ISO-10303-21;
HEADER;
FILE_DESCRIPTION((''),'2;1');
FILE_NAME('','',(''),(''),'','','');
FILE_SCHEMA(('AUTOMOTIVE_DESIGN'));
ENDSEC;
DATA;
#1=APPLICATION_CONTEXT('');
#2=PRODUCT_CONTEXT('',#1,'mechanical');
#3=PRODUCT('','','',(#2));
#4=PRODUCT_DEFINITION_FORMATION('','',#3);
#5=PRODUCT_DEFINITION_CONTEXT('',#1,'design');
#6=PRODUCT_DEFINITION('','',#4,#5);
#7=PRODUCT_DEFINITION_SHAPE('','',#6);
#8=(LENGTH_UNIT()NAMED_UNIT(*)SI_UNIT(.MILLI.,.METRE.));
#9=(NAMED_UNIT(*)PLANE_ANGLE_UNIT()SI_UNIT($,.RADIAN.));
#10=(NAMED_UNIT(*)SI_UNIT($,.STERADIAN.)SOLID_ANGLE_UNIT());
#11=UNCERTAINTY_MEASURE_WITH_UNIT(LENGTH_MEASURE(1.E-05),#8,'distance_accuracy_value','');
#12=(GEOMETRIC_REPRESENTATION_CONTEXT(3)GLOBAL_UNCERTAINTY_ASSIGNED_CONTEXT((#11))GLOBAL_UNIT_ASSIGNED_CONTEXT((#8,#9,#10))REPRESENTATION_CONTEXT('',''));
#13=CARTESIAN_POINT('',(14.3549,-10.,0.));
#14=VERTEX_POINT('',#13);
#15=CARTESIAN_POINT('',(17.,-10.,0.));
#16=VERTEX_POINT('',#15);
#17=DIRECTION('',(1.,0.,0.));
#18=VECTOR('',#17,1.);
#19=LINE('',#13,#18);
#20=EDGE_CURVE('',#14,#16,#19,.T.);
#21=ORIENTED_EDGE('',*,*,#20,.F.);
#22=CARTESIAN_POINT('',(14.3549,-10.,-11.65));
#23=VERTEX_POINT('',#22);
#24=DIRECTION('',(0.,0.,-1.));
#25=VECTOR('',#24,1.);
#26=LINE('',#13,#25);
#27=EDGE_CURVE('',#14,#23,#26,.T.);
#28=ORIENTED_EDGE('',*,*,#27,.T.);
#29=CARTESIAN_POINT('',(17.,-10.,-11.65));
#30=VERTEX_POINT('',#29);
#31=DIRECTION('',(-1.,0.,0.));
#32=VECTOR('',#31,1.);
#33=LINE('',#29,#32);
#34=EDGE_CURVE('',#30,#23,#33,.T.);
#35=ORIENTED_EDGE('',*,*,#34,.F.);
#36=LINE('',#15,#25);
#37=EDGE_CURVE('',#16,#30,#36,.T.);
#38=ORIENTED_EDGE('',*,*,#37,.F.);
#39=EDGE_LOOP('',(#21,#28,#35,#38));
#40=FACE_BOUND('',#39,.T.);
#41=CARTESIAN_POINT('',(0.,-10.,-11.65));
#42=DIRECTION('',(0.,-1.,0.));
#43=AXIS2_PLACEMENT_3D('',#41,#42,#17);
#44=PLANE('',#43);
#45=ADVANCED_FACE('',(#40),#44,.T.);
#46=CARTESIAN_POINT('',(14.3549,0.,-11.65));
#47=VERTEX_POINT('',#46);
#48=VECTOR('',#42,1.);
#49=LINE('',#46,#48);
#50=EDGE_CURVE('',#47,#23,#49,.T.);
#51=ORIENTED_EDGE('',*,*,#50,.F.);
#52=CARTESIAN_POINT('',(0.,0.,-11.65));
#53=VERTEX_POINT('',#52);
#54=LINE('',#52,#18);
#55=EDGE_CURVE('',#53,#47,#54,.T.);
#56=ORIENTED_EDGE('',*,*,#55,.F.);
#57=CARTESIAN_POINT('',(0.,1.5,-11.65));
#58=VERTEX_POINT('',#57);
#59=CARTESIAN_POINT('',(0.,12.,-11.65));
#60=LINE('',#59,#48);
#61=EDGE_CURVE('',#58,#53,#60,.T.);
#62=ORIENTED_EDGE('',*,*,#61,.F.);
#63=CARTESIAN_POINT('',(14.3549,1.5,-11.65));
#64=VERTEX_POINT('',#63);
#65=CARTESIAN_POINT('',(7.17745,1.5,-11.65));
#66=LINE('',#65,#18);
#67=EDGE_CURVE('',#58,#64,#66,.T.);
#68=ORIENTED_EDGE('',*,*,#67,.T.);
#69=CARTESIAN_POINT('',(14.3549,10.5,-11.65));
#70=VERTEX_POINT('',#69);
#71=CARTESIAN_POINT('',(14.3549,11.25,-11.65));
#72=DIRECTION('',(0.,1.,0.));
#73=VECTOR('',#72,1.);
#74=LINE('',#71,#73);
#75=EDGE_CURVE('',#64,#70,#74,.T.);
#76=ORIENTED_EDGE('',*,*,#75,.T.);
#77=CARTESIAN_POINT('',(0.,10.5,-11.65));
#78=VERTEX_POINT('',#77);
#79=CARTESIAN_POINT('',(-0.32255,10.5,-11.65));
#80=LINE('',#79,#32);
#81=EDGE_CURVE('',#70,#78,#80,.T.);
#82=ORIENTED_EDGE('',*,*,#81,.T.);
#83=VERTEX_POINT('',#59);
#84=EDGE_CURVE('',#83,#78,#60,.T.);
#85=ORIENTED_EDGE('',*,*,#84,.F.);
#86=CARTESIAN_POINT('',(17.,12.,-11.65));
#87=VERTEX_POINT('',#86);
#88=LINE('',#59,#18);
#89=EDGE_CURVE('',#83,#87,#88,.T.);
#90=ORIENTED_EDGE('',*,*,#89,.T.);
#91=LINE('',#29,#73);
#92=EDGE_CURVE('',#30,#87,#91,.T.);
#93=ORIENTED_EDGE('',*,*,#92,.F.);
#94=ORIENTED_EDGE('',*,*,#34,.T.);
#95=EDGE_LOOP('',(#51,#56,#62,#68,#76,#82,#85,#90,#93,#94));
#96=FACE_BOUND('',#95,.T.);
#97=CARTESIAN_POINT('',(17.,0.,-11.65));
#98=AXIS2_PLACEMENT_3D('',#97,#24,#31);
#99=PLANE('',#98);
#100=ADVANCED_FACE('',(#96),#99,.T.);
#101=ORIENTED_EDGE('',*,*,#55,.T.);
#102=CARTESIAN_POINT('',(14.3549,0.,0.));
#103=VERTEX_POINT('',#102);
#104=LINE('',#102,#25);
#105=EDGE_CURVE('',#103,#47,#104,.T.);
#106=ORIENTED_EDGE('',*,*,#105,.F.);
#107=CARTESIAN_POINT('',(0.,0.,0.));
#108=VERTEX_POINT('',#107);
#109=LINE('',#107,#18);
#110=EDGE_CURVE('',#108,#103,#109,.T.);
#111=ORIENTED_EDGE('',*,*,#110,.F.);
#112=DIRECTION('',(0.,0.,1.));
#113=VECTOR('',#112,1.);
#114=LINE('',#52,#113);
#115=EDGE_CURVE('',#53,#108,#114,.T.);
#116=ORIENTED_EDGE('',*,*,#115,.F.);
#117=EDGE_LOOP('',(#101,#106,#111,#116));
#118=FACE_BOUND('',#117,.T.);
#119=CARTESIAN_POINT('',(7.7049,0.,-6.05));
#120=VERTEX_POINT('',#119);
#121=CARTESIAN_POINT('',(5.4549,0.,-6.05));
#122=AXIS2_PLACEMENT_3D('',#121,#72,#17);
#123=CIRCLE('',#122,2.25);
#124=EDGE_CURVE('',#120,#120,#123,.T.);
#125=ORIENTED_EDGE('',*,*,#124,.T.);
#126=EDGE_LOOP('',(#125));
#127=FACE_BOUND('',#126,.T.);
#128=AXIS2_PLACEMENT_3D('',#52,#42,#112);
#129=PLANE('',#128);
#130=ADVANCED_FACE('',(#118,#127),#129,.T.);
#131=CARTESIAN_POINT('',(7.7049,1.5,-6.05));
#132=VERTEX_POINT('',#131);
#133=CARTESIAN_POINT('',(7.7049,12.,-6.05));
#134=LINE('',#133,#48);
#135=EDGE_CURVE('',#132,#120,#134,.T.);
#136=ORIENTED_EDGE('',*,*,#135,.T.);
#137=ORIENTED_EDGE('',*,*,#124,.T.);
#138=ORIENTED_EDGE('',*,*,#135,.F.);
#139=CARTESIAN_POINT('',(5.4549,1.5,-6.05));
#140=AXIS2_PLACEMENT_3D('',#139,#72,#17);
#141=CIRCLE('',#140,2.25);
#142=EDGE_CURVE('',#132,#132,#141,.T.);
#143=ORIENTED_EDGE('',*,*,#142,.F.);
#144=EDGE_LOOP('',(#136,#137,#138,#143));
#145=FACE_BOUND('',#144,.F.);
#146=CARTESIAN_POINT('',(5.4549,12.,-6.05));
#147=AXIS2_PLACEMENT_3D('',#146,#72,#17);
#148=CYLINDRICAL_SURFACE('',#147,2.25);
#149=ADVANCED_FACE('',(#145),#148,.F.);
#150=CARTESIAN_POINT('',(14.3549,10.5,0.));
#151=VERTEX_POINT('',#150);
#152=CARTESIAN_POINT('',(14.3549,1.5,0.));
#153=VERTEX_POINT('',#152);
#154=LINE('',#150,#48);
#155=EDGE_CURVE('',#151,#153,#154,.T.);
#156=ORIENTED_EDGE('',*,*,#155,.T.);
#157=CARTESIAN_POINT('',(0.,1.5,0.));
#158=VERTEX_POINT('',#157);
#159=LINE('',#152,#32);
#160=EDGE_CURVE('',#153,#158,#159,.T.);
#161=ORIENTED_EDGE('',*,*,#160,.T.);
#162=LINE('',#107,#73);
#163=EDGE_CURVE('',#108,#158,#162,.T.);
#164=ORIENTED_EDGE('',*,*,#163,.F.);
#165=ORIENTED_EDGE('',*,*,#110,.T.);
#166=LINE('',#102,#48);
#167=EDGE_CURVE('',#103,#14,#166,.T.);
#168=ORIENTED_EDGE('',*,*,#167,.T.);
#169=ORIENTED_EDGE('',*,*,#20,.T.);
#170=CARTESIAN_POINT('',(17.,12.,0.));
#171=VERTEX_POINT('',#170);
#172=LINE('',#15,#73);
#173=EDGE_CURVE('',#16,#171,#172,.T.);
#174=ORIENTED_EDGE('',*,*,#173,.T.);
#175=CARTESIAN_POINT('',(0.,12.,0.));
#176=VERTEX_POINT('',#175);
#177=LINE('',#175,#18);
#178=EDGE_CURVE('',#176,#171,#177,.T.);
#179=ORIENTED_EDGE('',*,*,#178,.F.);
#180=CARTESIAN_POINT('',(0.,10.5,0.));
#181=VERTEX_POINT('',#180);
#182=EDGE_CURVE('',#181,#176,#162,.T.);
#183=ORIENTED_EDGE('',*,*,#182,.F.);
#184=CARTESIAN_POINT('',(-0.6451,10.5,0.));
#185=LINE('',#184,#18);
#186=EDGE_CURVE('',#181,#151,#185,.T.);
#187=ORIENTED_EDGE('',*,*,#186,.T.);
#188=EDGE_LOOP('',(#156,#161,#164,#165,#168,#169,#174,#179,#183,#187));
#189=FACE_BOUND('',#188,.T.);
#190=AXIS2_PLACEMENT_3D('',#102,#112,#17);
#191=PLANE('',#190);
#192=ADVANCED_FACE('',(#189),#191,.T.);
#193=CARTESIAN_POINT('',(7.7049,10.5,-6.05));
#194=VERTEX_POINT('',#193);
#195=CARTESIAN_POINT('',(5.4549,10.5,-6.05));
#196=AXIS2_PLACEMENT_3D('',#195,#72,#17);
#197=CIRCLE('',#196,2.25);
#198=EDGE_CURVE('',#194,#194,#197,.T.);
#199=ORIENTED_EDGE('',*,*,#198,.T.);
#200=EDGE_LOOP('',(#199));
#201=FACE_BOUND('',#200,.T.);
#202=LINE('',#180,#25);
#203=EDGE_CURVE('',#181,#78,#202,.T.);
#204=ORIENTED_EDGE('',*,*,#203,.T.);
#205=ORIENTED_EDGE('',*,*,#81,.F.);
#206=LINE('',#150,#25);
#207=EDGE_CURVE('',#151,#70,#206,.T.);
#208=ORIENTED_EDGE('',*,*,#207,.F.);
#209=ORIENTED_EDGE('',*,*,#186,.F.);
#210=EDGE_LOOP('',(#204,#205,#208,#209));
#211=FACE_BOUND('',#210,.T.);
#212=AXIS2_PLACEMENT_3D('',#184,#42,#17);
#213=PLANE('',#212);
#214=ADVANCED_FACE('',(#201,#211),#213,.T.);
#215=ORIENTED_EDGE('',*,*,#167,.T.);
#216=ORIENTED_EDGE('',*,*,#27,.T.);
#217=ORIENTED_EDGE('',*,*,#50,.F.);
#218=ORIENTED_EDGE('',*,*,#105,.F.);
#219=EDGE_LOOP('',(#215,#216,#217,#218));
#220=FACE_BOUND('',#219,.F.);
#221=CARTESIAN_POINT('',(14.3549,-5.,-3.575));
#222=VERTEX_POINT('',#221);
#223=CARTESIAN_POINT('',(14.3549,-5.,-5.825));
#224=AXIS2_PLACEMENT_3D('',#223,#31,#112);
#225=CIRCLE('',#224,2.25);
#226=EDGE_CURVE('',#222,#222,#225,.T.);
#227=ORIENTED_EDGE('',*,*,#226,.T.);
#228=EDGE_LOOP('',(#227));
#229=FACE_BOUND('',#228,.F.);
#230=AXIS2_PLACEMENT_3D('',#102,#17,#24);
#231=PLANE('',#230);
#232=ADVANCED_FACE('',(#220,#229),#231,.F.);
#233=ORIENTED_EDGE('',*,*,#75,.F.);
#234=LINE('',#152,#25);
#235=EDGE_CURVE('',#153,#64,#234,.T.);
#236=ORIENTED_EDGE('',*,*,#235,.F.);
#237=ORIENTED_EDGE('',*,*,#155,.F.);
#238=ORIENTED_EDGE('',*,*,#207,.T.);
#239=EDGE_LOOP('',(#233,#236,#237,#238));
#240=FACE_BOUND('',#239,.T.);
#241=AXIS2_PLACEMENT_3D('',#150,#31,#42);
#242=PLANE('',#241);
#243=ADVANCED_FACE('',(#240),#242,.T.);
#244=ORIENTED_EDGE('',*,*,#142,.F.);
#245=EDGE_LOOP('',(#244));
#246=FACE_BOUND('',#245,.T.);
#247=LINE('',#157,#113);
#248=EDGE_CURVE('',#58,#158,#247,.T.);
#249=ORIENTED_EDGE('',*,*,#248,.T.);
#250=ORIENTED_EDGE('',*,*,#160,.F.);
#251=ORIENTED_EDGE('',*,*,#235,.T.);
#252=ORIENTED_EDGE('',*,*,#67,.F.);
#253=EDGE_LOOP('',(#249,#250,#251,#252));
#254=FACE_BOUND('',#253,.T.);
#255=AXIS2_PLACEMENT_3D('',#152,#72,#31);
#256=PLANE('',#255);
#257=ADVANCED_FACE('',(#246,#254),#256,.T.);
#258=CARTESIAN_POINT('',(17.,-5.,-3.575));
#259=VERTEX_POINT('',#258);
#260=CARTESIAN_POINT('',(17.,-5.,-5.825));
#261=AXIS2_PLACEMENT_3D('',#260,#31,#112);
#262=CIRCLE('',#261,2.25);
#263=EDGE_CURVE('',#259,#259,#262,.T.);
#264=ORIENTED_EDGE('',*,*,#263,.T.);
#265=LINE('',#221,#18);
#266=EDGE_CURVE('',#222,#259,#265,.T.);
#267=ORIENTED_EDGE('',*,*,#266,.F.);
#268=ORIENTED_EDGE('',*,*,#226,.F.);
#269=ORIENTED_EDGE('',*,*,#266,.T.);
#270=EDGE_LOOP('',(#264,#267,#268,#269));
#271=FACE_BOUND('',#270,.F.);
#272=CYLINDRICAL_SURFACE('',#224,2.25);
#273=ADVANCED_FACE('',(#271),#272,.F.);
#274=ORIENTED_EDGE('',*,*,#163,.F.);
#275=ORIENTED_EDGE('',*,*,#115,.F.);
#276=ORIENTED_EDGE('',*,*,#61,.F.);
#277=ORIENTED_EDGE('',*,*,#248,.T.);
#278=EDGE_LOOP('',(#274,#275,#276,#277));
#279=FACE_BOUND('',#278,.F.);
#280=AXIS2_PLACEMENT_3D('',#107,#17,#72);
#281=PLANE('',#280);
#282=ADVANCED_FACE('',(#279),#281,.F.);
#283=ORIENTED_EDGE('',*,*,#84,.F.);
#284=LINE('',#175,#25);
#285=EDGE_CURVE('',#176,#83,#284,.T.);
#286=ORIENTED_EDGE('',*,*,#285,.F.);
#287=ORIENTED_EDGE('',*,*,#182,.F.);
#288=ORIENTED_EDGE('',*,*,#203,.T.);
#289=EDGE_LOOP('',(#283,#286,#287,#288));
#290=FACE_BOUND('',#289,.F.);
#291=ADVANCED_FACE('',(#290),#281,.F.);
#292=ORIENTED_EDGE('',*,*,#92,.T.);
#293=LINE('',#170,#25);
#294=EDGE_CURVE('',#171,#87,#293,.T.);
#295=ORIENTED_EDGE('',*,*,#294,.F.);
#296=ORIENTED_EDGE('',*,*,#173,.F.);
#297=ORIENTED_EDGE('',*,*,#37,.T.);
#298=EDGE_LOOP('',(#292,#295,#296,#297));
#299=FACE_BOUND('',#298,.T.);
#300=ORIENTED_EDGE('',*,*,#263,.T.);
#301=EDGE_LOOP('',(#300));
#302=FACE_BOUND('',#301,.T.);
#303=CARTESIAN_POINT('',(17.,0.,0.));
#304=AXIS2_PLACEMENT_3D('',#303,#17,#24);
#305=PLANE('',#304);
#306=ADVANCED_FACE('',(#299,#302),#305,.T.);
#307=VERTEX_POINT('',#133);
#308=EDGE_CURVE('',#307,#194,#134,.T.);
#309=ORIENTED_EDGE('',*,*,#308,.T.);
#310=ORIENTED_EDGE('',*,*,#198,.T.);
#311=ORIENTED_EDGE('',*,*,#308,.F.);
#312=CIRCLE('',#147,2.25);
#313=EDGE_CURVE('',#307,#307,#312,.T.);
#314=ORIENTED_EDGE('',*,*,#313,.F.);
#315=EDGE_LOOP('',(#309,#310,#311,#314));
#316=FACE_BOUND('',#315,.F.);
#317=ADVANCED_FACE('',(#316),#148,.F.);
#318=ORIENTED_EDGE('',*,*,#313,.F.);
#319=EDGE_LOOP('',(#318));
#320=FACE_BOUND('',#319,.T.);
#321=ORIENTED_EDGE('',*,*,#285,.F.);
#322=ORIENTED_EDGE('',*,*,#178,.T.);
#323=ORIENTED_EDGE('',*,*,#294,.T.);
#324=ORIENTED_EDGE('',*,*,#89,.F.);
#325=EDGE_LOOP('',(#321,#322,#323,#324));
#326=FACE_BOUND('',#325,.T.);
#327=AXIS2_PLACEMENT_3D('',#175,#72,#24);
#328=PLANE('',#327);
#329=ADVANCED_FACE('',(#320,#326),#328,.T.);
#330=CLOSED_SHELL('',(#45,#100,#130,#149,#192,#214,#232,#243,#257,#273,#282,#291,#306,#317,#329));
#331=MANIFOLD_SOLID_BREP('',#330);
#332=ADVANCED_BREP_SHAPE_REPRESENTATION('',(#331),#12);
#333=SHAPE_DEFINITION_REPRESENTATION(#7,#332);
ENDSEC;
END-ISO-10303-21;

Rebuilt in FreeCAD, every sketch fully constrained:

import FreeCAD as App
import Part
import Sketcher

V = App.Vector


def add_polygon(sketch, points):
    """Adds a closed chain of lines whose ends are joined by coincident constraints."""
    first, n = sketch.GeometryCount, len(points)
    for a, b in zip(points, points[1:] + points[:1]):
        sketch.addGeometry(Part.LineSegment(App.Vector(*a, 0), App.Vector(*b, 0)), False)
    for i in range(n):
        sketch.addConstraint(Sketcher.Constraint("Coincident", first + i, 2, first + (i + 1) % n, 1))

doc = App.newDocument("Part")
params = doc.addObject("Spreadsheet::Sheet", "Params")
for row, (alias, value) in enumerate([
    ("sketch1_width", "12 mm"),
    ("sketch1_height", "11.65 mm"),
    ("pad1_length", "17 mm"),
    ("sketch2_width", "15 mm"),
    ("sketch2_height", "9 mm"),
    ("pocket1_length", "14 mm"),
    ("sketch3_diameter", "4.5 mm"),
    ("pocket2_length", "14 mm"),
    ("sketch4_height", "11.65 mm"),
    ("pad2_length", "10 mm"),
    ("sketch5_diameter", "4.5 mm"),
    ("pocket3_length", "4 mm"),
], start=1):
    params.set(f"A{row}", alias)
    params.set(f"B{row}", "=" + value)
    params.setAlias(f"B{row}", alias)

body = doc.addObject("PartDesign::Body", "Body")

# Sketch on YZ plane
sketch1 = body.newObject("Sketcher::SketchObject", "Sketch")
sketch1.AttachmentSupport = (doc.getObject("YZ_Plane"), [""])
sketch1.MapMode = "FlatFace"
add_polygon(sketch1, [(12, 0), (0, 0), (0, -12), (12, -12)])  # lines 0-3
sketch1.addConstraint([
    Sketcher.Constraint("Horizontal", 0),
    Sketcher.Constraint("Vertical", 1),
    Sketcher.Constraint("Horizontal", 2),
    Sketcher.Constraint("Vertical", 3),
    Sketcher.Constraint("Coincident", 0, 2, -1, 1),
    Sketcher.Constraint("DistanceX", 0, 2, 0, 1, 12.0),
    Sketcher.Constraint("DistanceY", 1, 2, 1, 1, 11.65),
])
sketch1.setExpression("Constraints[9]", "Params.sketch1_width")
sketch1.setExpression("Constraints[10]", "Params.sketch1_height")
pad1 = body.newObject("PartDesign::Pad", "Pad")
pad1.Profile = sketch1
pad1.setExpression("Length", "Params.pad1_length")

# Sketch on XY plane
sketch2 = body.newObject("Sketcher::SketchObject", "Sketch001")
sketch2.AttachmentSupport = (doc.getObject("XY_Plane"), [""])
sketch2.MapMode = "FlatFace"
add_polygon(sketch2, [(14, 10), (-1, 10), (-1, 2), (14, 2)])  # lines 0-3
sketch2.addConstraint([
    Sketcher.Constraint("Horizontal", 0),
    Sketcher.Constraint("Vertical", 1),
    Sketcher.Constraint("Horizontal", 2),
    Sketcher.Constraint("Vertical", 3),
    Sketcher.Constraint("DistanceX", 0, 2, 0, 1, 15.0),
    Sketcher.Constraint("DistanceY", 1, 2, 1, 1, 9.0),
    Sketcher.Constraint("DistanceY", -1, 1, 1, 2, 1.5),
    Sketcher.Constraint("DistanceX", 0, 2, -1, 1, 0.645),
])
sketch2.setExpression("Constraints[8]", "Params.sketch2_width")
sketch2.setExpression("Constraints[9]", "Params.sketch2_height")
pocket1 = body.newObject("PartDesign::Pocket", "Pocket")
pocket1.Profile = sketch2
pocket1.setExpression("Length", "Params.pocket1_length")

# Sketch on XZ plane
sketch3 = body.newObject("Sketcher::SketchObject", "Sketch002")
sketch3.AttachmentSupport = (doc.getObject("XZ_Plane"), [""])
sketch3.MapMode = "FlatFace"
sketch3.AttachmentOffset = App.Placement(V(0, 0, -12), App.Rotation())
sketch3.addGeometry(Part.Circle(V(5.5, -6, 0), V(0, 0, 1), 2.2), False)
sketch3.addConstraint([
    Sketcher.Constraint("Diameter", 0, 4.5),
    Sketcher.Constraint("DistanceY", 0, 3, -1, 1, 6.05),
    Sketcher.Constraint("DistanceX", -1, 1, 0, 3, 5.455),
])
sketch3.setExpression("Constraints[0]", "Params.sketch3_diameter")
pocket2 = body.newObject("PartDesign::Pocket", "Pocket001")
pocket2.Profile = sketch3
pocket2.setExpression("Length", "Params.pocket2_length")
pocket2.Reversed = True

# Sketch on XZ plane
sketch4 = body.newObject("Sketcher::SketchObject", "Sketch003")
sketch4.AttachmentSupport = (doc.getObject("XZ_Plane"), [""])
sketch4.MapMode = "FlatFace"
add_polygon(sketch4, [(17, 0), (14.4, 0), (14.4, -11.7), (17, -11.7)])  # lines 0-3
sketch4.addConstraint([
    Sketcher.Constraint("Horizontal", 0),
    Sketcher.Constraint("Vertical", 1),
    Sketcher.Constraint("Horizontal", 2),
    Sketcher.Constraint("Vertical", 3),
    Sketcher.Constraint("PointOnObject", 0, 2, -1),
    Sketcher.Constraint("DistanceX", -1, 1, 2, 2, 17.0),
    Sketcher.Constraint("DistanceY", 1, 2, 1, 1, 11.65),
    Sketcher.Constraint("DistanceX", 0, 2, 0, 1, 2.645),
])
sketch4.setExpression("Constraints[10]", "Params.sketch4_height")
pad2 = body.newObject("PartDesign::Pad", "Pad001")
pad2.Profile = sketch4
pad2.setExpression("Length", "Params.pad2_length")

# Sketch on YZ plane
sketch5 = body.newObject("Sketcher::SketchObject", "Sketch004")
sketch5.AttachmentSupport = (doc.getObject("YZ_Plane"), [""])
sketch5.MapMode = "FlatFace"
sketch5.AttachmentOffset = App.Placement(V(0, 0, 14.3549), App.Rotation())
sketch5.addGeometry(Part.Circle(V(-5, -5.8, 0), V(0, 0, 1), 2.2), False)
sketch5.addConstraint([
    Sketcher.Constraint("Diameter", 0, 4.5),
    Sketcher.Constraint("DistanceX", 0, 3, -1, 1, 5.0),
    Sketcher.Constraint("DistanceY", 0, 3, -1, 1, 5.825),
])
sketch5.setExpression("Constraints[0]", "Params.sketch5_diameter")
pocket3 = body.newObject("PartDesign::Pocket", "Pocket002")
pocket3.Profile = sketch5
pocket3.setExpression("Length", "Params.pocket3_length")
pocket3.Reversed = True

doc.recompute()
